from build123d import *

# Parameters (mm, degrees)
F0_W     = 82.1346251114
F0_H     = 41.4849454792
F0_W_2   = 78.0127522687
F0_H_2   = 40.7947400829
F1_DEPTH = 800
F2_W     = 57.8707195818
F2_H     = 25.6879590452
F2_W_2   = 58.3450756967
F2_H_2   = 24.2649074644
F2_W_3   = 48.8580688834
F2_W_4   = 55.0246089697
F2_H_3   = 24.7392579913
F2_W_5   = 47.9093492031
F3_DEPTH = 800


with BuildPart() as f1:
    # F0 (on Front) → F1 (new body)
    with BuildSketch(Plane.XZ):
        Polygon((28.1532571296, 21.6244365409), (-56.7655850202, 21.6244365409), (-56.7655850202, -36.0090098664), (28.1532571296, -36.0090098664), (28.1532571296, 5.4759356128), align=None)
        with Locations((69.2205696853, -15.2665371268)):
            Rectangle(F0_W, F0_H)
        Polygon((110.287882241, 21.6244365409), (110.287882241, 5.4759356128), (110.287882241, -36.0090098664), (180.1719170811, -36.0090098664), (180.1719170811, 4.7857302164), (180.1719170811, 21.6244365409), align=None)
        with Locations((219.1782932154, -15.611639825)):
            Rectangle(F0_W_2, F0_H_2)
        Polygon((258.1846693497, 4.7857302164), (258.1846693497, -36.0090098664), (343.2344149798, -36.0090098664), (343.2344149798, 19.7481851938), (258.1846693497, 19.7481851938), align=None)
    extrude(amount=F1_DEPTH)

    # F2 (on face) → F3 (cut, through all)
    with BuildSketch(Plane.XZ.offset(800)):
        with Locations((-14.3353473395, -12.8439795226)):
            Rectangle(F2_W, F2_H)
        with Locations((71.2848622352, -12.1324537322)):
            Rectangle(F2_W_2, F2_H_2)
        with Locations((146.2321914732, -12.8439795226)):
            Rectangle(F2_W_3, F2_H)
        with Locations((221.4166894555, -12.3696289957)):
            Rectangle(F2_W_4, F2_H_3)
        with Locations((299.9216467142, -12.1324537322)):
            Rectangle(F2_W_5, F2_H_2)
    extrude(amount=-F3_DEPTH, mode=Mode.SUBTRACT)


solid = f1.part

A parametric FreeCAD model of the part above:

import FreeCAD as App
import Part
import Sketcher
from FreeCAD import Vector
Q = App.Units.Quantity

doc = App.newDocument("Part")
body = doc.addObject("PartDesign::Body", "Body")

# Sketch on XZ plane
sketch1 = body.newObject("Sketcher::SketchObject", "Sketch")
sketch1.AttachmentSupport = (doc.getObject("XZ_Plane"), [""])
sketch1.MapMode = "FlatFace"
sketch1.addGeometry([
    Part.LineSegment(Vector(28, 22, 0), Vector(-57, 22, 0)),  # 0
    Part.LineSegment(Vector(-57, 22, 0), Vector(-57, -36, 0)),  # 1
    Part.LineSegment(Vector(-57, -36, 0), Vector(343, -36, 0)),  # 2
    Part.LineSegment(Vector(343, -36, 0), Vector(343, 20, 0)),  # 3
    Part.LineSegment(Vector(343, 20, 0), Vector(258, 20, 0)),  # 4
    Part.LineSegment(Vector(258, 20, 0), Vector(258, 5, 0)),  # 5
    Part.LineSegment(Vector(258, 5, 0), Vector(180, 5, 0)),  # 6
    Part.LineSegment(Vector(180, 5, 0), Vector(180, 22, 0)),  # 7
    Part.LineSegment(Vector(180, 22, 0), Vector(110, 22, 0)),  # 8
    Part.LineSegment(Vector(110, 22, 0), Vector(110, 5, 0)),  # 9
    Part.LineSegment(Vector(110, 5, 0), Vector(28, 5, 0)),  # 10
    Part.LineSegment(Vector(28, 5, 0), Vector(28, 22, 0)),  # 11
], False)
sketch1.addConstraint([
    Sketcher.Constraint("Coincident", 0, 2, 1, 1),
    Sketcher.Constraint("Coincident", 1, 2, 2, 1),
    Sketcher.Constraint("Coincident", 2, 2, 3, 1),
    Sketcher.Constraint("Coincident", 3, 2, 4, 1),
    Sketcher.Constraint("Coincident", 4, 2, 5, 1),
    Sketcher.Constraint("Coincident", 5, 2, 6, 1),
    Sketcher.Constraint("Coincident", 6, 2, 7, 1),
    Sketcher.Constraint("Coincident", 7, 2, 8, 1),
    Sketcher.Constraint("Coincident", 8, 2, 9, 1),
    Sketcher.Constraint("Coincident", 9, 2, 10, 1),
    Sketcher.Constraint("Coincident", 10, 2, 11, 1),
    Sketcher.Constraint("Coincident", 11, 2, 0, 1),
    Sketcher.Constraint("Horizontal", 0),
    Sketcher.Constraint("Vertical", 1),
    Sketcher.Constraint("Horizontal", 2),
    Sketcher.Constraint("Vertical", 3),
    Sketcher.Constraint("Horizontal", 4),
    Sketcher.Constraint("Vertical", 5),
    Sketcher.Constraint("Horizontal", 6),
    Sketcher.Constraint("Vertical", 7),
    Sketcher.Constraint("Horizontal", 8),
    Sketcher.Constraint("Vertical", 9),
    Sketcher.Constraint("Horizontal", 10),
    Sketcher.Constraint("Vertical", 11),
    Sketcher.Constraint("Horizontal", 0, 2, 7, 2),
    Sketcher.Constraint("DistanceX", 2, 1, 2, 2, Q("400 mm")),
    Sketcher.Constraint("DistanceY", 9, 2, 9, 1, Q("16.148501 mm")),
    Sketcher.Constraint("DistanceX", 0, 2, 0, 1, Q("84.918842 mm")),
    Sketcher.Constraint("DistanceX", 4, 2, 4, 1, Q("85.049746 mm")),
    Sketcher.Constraint("DistanceX", 6, 2, 6, 1, Q("78.012752 mm")),
    Sketcher.Constraint("DistanceX", 8, 2, 8, 1, Q("69.884035 mm")),
    Sketcher.Constraint("DistanceY", 1, 2, 1, 1, Q("57.633446 mm")),
    Sketcher.Constraint("DistanceY", 3, 1, 3, 2, Q("55.757195 mm")),
    Sketcher.Constraint("DistanceY", 5, 2, 5, 1, Q("14.962455 mm")),
    Sketcher.Constraint("DistanceY", 1, 2, -1, 1, Q("36.00901 mm")),
    Sketcher.Constraint("DistanceX", -1, 1, 4, 2, Q("258.184669 mm")),
])
pad1 = body.newObject("PartDesign::Pad", "Pad")
pad1.Profile = sketch1
pad1.Length = 800

# Sketch on XZ plane
sketch2 = body.newObject("Sketcher::SketchObject", "Sketch001")
sketch2.AttachmentSupport = (doc.getObject("XZ_Plane"), [""])
sketch2.MapMode = "FlatFace"
sketch2.AttachmentOffset = App.Placement(Vector(0, 0, 800), App.Rotation())
sketch2.addGeometry([
    Part.LineSegment(Vector(-43, 0, 0), Vector(-43, -26, 0)),  # 0
    Part.LineSegment(Vector(-43, -26, 0), Vector(15, -26, 0)),  # 1
    Part.LineSegment(Vector(15, -26, 0), Vector(15, 0, 0)),  # 2
    Part.LineSegment(Vector(15, 0, 0), Vector(-43, 0, 0)),  # 3
    Part.LineSegment(Vector(42, 0, 0), Vector(42, -24, 0)),  # 4
    Part.LineSegment(Vector(42, -24, 0), Vector(100, -24, 0)),  # 5
    Part.LineSegment(Vector(100, -24, 0), Vector(100, 0, 0)),  # 6
    Part.LineSegment(Vector(100, 0, 0), Vector(42, 0, 0)),  # 7
    Part.LineSegment(Vector(122, 0, 0), Vector(122, -26, 0)),  # 8
    Part.LineSegment(Vector(122, -26, 0), Vector(171, -26, 0)),  # 9
    Part.LineSegment(Vector(171, -26, 0), Vector(171, 0, 0)),  # 10
    Part.LineSegment(Vector(171, 0, 0), Vector(122, 0, 0)),  # 11
    Part.LineSegment(Vector(194, 0, 0), Vector(194, -25, 0)),  # 12
    Part.LineSegment(Vector(194, -25, 0), Vector(249, -25, 0)),  # 13
    Part.LineSegment(Vector(249, -25, 0), Vector(249, 0, 0)),  # 14
    Part.LineSegment(Vector(249, 0, 0), Vector(194, 0, 0)),  # 15
    Part.LineSegment(Vector(276, 0, 0), Vector(276, -24, 0)),  # 16
    Part.LineSegment(Vector(276, -24, 0), Vector(324, -24, 0)),  # 17
    Part.LineSegment(Vector(324, -24, 0), Vector(324, 0, 0)),  # 18
    Part.LineSegment(Vector(324, 0, 0), Vector(276, 0, 0)),  # 19
], False)
sketch2.addConstraint([
    Sketcher.Constraint("Coincident", 0, 2, 1, 1),
    Sketcher.Constraint("Coincident", 1, 2, 2, 1),
    Sketcher.Constraint("Coincident", 2, 2, 3, 1),
    Sketcher.Constraint("Coincident", 3, 2, 0, 1),
    Sketcher.Constraint("Coincident", 4, 2, 5, 1),
    Sketcher.Constraint("Coincident", 5, 2, 6, 1),
    Sketcher.Constraint("Coincident", 6, 2, 7, 1),
    Sketcher.Constraint("Coincident", 7, 2, 4, 1),
    Sketcher.Constraint("Coincident", 8, 2, 9, 1),
    Sketcher.Constraint("Coincident", 9, 2, 10, 1),
    Sketcher.Constraint("Coincident", 10, 2, 11, 1),
    Sketcher.Constraint("Coincident", 11, 2, 8, 1),
    Sketcher.Constraint("Coincident", 12, 2, 13, 1),
    Sketcher.Constraint("Coincident", 13, 2, 14, 1),
    Sketcher.Constraint("Coincident", 14, 2, 15, 1),
    Sketcher.Constraint("Coincident", 15, 2, 12, 1),
    Sketcher.Constraint("Coincident", 16, 2, 17, 1),
    Sketcher.Constraint("Coincident", 17, 2, 18, 1),
    Sketcher.Constraint("Coincident", 18, 2, 19, 1),
    Sketcher.Constraint("Coincident", 19, 2, 16, 1),
    Sketcher.Constraint("Vertical", 0),
    Sketcher.Constraint("Horizontal", 1),
    Sketcher.Constraint("Vertical", 2),
    Sketcher.Constraint("Horizontal", 3),
    Sketcher.Constraint("Vertical", 4),
    Sketcher.Constraint("Horizontal", 5),
    Sketcher.Constraint("Vertical", 6),
    Sketcher.Constraint("Horizontal", 7),
    Sketcher.Constraint("Vertical", 8),
    Sketcher.Constraint("Horizontal", 9),
    Sketcher.Constraint("Vertical", 10),
    Sketcher.Constraint("Horizontal", 11),
    Sketcher.Constraint("Vertical", 12),
    Sketcher.Constraint("Horizontal", 13),
    Sketcher.Constraint("Vertical", 14),
    Sketcher.Constraint("Horizontal", 15),
    Sketcher.Constraint("Vertical", 16),
    Sketcher.Constraint("Horizontal", 17),
    Sketcher.Constraint("Vertical", 18),
    Sketcher.Constraint("Horizontal", 19),
    Sketcher.Constraint("PointOnObject", 2, 2, -1),
    Sketcher.Constraint("PointOnObject", 6, 2, -1),
    Sketcher.Constraint("PointOnObject", 10, 2, -1),
    Sketcher.Constraint("PointOnObject", 14, 2, -1),
    Sketcher.Constraint("PointOnObject", 18, 2, -1),
    Sketcher.Constraint("Horizontal", 1, 2, 8, 2),
    Sketcher.Constraint("Horizontal", 5, 2, 16, 2),
    Sketcher.Constraint("DistanceX", 1, 1, 1, 2, Q("57.87072 mm")),
    Sketcher.Constraint("DistanceX", 9, 1, 9, 2, Q("48.858069 mm")),
    Sketcher.Constraint("DistanceX", 13, 1, 13, 2, Q("55.024609 mm")),
    Sketcher.Constraint("DistanceX", 17, 1, 17, 2, Q("47.909349 mm")),
    Sketcher.Constraint("DistanceY", 0, 2, 0, 1, Q("25.687959 mm")),
    Sketcher.Constraint("DistanceX", -1, 1, 5, 2, Q("100.4574 mm")),
    Sketcher.Constraint("DistanceX", 4, 2, 9, 2, Q("128.548902 mm")),
    Sketcher.Constraint("DistanceY", 9, 2, 12, 2, Q("0.948701 mm")),
    Sketcher.Constraint("DistanceX", 5, 1, 5, 2, Q("58.345076 mm")),
    Sketcher.Constraint("DistanceY", 4, 2, 4, 1, Q("24.264907 mm")),
    Sketcher.Constraint("DistanceX", -1, 1, 17, 2, Q("323.876321 mm")),
    Sketcher.Constraint("DistanceX", 1, 2, 4, 2, Q("27.512312 mm")),
    Sketcher.Constraint("DistanceX", 9, 2, 12, 2, Q("23.243159 mm")),
])
pocket1 = body.newObject("PartDesign::Pocket", "Pocket")
pocket1.Profile = sketch2
pocket1.Type = "ThroughAll"

doc.recompute()
